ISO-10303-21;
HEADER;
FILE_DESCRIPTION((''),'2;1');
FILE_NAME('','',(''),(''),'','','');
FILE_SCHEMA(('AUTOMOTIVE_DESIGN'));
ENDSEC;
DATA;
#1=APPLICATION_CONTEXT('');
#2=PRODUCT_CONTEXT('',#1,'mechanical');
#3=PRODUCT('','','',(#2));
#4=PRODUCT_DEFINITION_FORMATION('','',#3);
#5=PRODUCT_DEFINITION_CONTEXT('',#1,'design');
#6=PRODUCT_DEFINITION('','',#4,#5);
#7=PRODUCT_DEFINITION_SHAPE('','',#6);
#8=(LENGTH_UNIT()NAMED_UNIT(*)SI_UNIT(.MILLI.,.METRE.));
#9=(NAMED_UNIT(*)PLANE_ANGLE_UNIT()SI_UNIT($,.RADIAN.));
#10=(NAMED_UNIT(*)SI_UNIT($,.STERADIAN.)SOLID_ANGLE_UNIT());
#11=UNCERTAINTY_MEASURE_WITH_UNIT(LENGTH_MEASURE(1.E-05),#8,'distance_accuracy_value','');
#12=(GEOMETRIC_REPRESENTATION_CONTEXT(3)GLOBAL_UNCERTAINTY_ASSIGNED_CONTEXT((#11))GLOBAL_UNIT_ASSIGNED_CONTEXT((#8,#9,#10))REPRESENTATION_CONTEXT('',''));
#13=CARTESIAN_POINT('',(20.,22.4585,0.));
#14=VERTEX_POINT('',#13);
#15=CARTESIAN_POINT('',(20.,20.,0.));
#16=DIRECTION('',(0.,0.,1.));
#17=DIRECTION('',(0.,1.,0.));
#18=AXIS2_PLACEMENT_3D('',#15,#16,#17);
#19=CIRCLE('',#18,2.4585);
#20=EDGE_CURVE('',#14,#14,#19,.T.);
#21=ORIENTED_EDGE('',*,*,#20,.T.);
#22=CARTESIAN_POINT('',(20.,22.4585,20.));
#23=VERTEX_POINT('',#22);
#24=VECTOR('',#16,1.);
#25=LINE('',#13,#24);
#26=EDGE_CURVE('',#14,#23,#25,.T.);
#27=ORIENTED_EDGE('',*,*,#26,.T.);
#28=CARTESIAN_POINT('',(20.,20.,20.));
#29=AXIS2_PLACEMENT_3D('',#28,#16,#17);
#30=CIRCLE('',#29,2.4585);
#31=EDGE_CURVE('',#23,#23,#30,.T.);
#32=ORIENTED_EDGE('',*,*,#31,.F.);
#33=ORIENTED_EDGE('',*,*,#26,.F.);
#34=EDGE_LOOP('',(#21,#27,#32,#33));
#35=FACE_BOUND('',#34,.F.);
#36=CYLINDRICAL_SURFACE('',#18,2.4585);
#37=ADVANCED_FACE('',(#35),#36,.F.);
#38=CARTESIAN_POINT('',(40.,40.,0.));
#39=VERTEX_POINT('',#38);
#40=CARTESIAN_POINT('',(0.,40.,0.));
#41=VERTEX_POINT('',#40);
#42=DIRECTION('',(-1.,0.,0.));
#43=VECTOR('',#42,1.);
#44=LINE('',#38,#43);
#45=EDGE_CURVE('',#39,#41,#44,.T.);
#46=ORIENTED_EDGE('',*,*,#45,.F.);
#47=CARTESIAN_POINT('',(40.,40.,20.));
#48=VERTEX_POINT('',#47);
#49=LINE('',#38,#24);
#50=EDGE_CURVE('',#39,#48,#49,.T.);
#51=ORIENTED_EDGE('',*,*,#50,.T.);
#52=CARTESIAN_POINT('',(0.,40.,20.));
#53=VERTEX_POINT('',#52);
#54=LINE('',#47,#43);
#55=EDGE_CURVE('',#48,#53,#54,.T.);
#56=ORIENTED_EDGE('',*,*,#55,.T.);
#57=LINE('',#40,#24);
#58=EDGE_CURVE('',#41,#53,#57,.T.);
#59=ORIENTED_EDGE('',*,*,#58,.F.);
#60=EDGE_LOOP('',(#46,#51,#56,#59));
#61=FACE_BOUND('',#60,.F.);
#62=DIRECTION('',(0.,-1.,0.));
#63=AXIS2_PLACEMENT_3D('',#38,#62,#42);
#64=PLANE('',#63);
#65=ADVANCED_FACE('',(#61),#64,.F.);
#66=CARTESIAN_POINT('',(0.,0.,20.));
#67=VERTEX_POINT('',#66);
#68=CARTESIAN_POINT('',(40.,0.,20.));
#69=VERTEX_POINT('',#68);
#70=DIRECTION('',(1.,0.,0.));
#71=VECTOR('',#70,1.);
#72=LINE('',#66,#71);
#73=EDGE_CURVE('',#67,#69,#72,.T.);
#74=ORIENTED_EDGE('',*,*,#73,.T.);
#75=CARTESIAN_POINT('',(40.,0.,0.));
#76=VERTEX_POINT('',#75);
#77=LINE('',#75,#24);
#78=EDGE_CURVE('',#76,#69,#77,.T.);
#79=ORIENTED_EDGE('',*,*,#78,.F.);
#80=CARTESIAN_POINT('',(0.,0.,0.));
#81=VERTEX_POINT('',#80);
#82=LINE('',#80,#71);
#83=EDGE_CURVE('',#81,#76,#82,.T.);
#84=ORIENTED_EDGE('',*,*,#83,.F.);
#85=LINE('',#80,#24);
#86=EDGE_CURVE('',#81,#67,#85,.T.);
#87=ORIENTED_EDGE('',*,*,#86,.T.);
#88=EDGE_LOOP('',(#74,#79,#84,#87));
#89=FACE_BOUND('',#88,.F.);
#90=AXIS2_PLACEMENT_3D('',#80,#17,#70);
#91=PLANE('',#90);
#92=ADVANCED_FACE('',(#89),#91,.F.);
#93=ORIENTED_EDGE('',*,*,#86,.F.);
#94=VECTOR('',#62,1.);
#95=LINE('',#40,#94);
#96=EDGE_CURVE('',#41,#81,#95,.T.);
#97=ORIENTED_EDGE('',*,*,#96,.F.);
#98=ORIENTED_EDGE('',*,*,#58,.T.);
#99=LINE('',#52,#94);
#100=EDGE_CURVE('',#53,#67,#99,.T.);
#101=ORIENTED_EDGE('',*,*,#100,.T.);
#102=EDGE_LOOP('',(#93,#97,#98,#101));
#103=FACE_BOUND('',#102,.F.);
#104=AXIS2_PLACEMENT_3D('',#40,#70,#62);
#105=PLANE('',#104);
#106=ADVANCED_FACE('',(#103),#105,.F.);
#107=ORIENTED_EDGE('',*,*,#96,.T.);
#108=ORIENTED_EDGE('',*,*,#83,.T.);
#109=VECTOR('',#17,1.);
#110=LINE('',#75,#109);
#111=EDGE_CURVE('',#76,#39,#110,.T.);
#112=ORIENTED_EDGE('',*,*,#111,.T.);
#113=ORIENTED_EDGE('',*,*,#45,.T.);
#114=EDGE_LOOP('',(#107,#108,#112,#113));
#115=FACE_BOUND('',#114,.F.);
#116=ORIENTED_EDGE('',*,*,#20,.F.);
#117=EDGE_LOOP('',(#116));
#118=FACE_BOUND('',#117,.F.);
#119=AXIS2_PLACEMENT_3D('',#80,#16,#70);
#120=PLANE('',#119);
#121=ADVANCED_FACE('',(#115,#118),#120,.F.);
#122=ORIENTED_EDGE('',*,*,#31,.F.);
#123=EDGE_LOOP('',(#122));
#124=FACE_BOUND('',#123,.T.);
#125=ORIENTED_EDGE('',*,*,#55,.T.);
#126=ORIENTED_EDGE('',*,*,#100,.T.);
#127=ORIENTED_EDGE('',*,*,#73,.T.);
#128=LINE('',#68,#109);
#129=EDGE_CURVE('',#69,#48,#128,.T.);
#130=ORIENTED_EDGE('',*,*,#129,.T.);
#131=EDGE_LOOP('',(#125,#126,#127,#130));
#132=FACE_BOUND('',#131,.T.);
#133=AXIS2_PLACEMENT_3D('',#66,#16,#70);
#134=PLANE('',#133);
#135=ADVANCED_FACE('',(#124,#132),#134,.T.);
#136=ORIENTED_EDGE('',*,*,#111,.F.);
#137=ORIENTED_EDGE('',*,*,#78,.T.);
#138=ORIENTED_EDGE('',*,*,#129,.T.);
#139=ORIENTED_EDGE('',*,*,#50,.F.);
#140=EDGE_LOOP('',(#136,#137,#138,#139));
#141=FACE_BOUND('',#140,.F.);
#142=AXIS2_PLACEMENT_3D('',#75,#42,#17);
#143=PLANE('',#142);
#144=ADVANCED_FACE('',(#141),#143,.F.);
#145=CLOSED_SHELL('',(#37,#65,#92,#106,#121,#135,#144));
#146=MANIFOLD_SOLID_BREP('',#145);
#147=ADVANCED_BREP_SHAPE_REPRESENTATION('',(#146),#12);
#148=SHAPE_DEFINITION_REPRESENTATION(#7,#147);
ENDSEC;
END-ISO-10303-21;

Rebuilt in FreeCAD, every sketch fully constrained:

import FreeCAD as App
import Part
import Sketcher

V = App.Vector
Q = App.Units.Quantity

doc = App.newDocument("Part")
body = doc.addObject("PartDesign::Body", "Body")

# Sketch on XY plane
sketch1 = doc.addObject("Sketcher::SketchObject", "Sketch")
body.addObject(sketch1)
sketch1.AttachmentSupport = (doc.XY_Plane, [""])
sketch1.MapMode = "FlatFace"
sketch1.addGeometry([
    Part.LineSegment(V(0, 40, 0), V(0, 0, 0)),
    Part.LineSegment(V(0, 0, 0), V(40, 0, 0)),
    Part.LineSegment(V(40, 0, 0), V(40, 40, 0)),
    Part.LineSegment(V(40, 40, 0), V(0, 40, 0)),
], False)
sketch1.addConstraint([
    Sketcher.Constraint("Coincident", 0, 2, 1, 1),
    Sketcher.Constraint("Coincident", 1, 2, 2, 1),
    Sketcher.Constraint("Coincident", 2, 2, 3, 1),
    Sketcher.Constraint("Coincident", 3, 2, 0, 1),
    Sketcher.Constraint("Vertical", 0),
    Sketcher.Constraint("Horizontal", 1),
    Sketcher.Constraint("Vertical", 2),
    Sketcher.Constraint("Horizontal", 3),
    Sketcher.Constraint("Coincident", 0, 2, -1, 1),
    Sketcher.Constraint("Equal", 3, 0),
    Sketcher.Constraint("DistanceX", 1, 1, 1, 2, Q("40 mm")),
])
pad1 = doc.addObject("PartDesign::Pad", "Pad")
body.addObject(pad1)
pad1.Profile = sketch1
pad1.Length = 20

# Sketch on XY plane
sketch2 = doc.addObject("Sketcher::SketchObject", "Sketch001")
body.addObject(sketch2)
sketch2.AttachmentSupport = (doc.XY_Plane, [""])
sketch2.MapMode = "FlatFace"
sketch2.addGeometry(Part.Circle(V(20, 20, 0), V(0, 0, 1), 2.4585), False)
sketch2.addConstraint([
    Sketcher.Constraint("Diameter", 0, Q("4.917 mm")),
    Sketcher.Constraint("DistanceX", -1, 1, 0, 3, Q("20 mm")),
    Sketcher.Constraint("DistanceY", -1, 1, 0, 3, Q("20 mm")),
])
doc.recompute()
hole = doc.addObject("PartDesign::Hole", "Hole")
body.addObject(hole)
hole.Profile = sketch2
hole.ThreadType = "None"
hole.Diameter = 4.917
hole.DepthType = "ThroughAll"
hole.Reversed = True

doc.recompute()
